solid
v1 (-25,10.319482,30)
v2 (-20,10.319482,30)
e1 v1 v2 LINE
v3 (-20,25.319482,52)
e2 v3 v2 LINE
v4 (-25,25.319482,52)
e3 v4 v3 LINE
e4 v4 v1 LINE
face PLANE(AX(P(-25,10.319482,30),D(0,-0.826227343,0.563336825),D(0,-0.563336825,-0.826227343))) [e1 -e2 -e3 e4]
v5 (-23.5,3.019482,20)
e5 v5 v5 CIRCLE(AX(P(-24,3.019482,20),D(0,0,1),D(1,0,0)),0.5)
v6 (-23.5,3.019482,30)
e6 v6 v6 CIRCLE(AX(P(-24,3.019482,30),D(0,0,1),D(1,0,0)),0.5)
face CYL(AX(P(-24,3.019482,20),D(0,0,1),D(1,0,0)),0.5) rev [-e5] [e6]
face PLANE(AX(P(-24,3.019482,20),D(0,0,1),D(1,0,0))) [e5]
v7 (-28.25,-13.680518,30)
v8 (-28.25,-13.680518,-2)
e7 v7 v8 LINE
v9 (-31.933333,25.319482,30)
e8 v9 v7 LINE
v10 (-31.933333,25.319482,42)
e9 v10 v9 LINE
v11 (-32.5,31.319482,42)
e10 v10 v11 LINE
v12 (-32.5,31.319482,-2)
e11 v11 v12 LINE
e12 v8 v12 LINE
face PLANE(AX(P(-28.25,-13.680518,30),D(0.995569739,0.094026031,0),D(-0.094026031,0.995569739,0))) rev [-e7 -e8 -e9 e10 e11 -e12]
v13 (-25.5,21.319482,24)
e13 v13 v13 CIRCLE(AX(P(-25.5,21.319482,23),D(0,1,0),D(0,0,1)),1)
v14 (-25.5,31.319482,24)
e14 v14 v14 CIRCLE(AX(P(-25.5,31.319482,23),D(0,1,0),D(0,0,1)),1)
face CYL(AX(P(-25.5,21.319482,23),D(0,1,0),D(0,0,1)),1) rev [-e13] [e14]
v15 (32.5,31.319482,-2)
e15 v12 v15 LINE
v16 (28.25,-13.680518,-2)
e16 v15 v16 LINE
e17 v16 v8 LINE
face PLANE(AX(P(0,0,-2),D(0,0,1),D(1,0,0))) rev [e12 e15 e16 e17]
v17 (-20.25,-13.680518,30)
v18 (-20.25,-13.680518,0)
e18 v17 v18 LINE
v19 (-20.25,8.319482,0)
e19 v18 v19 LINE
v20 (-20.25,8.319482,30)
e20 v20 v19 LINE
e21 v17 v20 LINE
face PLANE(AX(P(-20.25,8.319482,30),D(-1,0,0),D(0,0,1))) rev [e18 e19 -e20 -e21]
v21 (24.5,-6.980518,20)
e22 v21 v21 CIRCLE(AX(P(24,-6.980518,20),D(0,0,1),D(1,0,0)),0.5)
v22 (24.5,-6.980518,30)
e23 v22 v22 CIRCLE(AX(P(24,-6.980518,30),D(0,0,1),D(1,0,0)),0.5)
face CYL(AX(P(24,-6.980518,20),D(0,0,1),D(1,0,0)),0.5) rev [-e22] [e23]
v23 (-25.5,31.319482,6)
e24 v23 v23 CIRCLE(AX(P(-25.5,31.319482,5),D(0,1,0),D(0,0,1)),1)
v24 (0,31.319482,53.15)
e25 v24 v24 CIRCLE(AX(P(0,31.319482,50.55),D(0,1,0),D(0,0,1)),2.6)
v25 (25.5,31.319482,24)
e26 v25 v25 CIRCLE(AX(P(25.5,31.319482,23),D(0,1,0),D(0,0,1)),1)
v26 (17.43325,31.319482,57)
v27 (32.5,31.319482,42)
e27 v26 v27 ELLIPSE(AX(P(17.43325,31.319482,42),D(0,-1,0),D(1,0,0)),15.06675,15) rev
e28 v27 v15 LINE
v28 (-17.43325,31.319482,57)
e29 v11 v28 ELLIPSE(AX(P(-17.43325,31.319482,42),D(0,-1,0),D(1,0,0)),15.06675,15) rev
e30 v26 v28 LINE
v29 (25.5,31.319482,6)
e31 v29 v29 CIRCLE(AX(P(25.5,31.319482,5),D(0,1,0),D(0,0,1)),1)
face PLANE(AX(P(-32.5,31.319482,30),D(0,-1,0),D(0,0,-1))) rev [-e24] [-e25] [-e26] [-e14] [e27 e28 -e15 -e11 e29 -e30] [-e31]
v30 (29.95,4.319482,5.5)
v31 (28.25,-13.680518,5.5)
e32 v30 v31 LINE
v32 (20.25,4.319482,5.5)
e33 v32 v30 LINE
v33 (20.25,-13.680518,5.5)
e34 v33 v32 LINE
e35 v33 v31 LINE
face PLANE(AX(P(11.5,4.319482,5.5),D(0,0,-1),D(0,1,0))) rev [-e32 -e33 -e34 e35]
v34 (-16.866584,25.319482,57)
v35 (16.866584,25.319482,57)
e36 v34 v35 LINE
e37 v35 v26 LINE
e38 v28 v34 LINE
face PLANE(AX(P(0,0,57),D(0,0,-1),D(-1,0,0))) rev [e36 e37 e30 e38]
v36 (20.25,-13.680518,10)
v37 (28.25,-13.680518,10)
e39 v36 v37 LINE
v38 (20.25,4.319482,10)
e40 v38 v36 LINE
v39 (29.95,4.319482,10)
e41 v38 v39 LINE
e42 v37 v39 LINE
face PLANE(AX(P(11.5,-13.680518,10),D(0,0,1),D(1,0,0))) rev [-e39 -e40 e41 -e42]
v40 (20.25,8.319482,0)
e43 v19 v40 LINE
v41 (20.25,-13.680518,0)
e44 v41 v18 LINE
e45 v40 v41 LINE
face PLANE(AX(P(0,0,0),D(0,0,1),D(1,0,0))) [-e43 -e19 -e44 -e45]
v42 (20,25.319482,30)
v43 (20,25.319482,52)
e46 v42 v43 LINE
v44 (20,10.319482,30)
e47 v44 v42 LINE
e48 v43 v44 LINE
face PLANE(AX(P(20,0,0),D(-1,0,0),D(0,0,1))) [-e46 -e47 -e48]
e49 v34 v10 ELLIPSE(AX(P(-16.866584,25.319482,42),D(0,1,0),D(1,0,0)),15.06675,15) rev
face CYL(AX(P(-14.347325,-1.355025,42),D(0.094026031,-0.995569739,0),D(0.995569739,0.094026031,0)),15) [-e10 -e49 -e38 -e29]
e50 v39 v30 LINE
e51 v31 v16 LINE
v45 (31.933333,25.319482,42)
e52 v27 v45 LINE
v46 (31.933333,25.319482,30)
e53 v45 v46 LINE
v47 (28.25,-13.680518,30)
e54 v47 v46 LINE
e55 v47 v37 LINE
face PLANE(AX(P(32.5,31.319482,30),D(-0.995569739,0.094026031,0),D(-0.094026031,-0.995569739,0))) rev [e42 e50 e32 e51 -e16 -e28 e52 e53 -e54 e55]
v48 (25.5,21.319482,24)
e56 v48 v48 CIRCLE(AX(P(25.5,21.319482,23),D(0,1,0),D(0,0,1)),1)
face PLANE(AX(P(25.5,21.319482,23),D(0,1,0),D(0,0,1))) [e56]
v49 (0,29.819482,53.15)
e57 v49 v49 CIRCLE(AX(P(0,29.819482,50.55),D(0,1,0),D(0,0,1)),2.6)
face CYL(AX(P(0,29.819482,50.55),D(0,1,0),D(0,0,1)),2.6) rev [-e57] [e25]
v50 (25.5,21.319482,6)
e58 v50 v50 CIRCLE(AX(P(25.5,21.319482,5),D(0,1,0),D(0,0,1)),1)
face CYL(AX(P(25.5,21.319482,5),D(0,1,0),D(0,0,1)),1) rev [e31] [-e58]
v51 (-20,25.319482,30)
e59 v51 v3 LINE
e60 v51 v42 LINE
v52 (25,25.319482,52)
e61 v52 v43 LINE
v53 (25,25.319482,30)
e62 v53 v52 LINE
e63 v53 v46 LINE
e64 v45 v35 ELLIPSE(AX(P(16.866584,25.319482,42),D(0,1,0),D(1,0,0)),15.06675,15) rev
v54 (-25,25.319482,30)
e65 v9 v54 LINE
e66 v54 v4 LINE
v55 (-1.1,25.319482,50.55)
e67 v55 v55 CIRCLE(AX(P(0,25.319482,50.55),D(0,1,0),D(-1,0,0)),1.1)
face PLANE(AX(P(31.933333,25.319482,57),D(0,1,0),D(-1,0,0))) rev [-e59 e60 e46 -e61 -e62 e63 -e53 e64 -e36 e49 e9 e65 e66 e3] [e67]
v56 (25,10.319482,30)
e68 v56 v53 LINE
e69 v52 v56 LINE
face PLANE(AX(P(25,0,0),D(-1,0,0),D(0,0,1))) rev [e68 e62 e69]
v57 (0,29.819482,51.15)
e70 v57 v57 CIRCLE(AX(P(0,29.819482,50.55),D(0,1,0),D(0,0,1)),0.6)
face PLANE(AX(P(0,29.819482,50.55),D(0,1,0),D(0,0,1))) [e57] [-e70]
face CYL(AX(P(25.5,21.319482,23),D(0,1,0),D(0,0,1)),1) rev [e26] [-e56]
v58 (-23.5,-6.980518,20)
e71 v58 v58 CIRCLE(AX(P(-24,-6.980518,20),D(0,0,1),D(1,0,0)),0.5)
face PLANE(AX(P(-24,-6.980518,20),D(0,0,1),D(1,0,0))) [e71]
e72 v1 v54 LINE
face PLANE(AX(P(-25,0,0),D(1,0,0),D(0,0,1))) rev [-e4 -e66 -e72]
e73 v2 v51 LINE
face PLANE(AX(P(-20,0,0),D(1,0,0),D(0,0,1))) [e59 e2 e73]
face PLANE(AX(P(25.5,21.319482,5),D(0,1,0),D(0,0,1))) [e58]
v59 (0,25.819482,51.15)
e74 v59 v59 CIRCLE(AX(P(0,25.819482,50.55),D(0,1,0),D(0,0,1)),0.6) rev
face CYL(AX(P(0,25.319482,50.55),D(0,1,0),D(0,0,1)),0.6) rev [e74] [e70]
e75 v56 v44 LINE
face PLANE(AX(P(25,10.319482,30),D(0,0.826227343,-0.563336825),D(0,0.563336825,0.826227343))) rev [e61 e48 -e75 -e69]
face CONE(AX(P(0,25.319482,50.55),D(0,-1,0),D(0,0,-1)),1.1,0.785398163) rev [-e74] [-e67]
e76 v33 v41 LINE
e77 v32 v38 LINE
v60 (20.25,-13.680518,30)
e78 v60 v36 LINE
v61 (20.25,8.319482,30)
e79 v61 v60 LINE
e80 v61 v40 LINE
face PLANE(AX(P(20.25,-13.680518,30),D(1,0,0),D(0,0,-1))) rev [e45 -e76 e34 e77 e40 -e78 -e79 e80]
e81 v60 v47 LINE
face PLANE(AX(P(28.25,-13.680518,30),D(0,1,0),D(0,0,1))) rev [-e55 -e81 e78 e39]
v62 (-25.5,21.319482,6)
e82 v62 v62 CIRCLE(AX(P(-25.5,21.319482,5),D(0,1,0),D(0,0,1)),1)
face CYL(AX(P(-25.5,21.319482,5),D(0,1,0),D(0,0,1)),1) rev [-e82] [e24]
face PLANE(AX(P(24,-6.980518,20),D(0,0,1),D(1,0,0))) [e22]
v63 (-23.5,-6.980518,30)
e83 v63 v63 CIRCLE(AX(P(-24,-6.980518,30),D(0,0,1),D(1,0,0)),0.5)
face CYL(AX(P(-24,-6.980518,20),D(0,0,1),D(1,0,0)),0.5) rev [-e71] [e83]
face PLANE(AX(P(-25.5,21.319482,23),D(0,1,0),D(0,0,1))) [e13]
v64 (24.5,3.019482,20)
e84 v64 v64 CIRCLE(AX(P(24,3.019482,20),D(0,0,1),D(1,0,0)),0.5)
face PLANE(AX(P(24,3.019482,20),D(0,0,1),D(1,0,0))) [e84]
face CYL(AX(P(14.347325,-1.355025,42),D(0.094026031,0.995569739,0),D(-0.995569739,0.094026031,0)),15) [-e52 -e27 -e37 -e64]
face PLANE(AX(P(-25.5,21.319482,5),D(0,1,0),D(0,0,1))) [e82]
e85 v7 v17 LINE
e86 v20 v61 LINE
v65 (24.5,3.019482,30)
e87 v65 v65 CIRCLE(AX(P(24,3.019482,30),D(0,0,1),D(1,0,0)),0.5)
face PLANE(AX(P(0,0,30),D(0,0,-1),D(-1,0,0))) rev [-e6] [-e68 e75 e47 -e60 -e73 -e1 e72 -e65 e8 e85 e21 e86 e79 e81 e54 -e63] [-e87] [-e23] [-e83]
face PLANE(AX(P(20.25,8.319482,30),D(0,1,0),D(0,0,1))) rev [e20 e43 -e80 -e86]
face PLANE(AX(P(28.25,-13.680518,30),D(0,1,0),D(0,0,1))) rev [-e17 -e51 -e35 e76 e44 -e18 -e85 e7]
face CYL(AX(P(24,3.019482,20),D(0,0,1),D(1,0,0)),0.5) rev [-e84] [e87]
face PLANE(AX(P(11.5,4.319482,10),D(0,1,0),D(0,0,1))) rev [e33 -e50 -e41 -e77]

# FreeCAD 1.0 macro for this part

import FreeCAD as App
import Part
import Sketcher
Q = App.Units.Quantity


def edges_at(feature, points):
    """Names of the edges that pass closest to the given points."""
    edges = feature.Shape.Edges
    near = lambda p: min(range(len(edges)), key=lambda i: edges[i].distToShape(Part.Vertex(*p))[0])
    return sorted({f"Edge{near(p) + 1}" for p in points})

doc = App.newDocument("Part")
body = doc.addObject("PartDesign::Body", "Body")

sketch1 = body.newObject("Sketcher::SketchObject", "Sketch")
sketch1.AttachmentSupport = (doc.getObject("XY_Plane"), [""])
sketch1.MapMode = "FlatFace"
sketch1.addGeometry(Part.LineSegment(App.Vector(32.5, 31.319482, 0), App.Vector(-32.5, 31.319482, 0)), False)
sketch1.addGeometry(Part.LineSegment(App.Vector(-32.5, 31.319482, 0), App.Vector(-28.25, -13.680518, 0)), False)
sketch1.addGeometry(Part.LineSegment(App.Vector(-28.25, -13.680518, 0), App.Vector(-20.25, -13.680518, 0)), False)
sketch1.addGeometry(Part.LineSegment(App.Vector(-20.25, -13.680518, 0), App.Vector(-20.25, 8.319482, 0)), False)
sketch1.addGeometry(Part.LineSegment(App.Vector(-20.25, 8.319482, 0), App.Vector(20.25, 8.319482, 0)), False)
sketch1.addGeometry(Part.LineSegment(App.Vector(20.25, 8.319482, 0), App.Vector(20.25, -13.680518, 0)), False)
sketch1.addGeometry(Part.LineSegment(App.Vector(20.25, -13.680518, 0), App.Vector(28.25, -13.680518, 0)), False)
sketch1.addGeometry(Part.LineSegment(App.Vector(28.25, -13.680518, 0), App.Vector(32.5, 31.319482, 0)), False)
sketch1.addConstraint(Sketcher.Constraint("Coincident", 0, 2, 1, 1))
sketch1.addConstraint(Sketcher.Constraint("Coincident", 1, 2, 2, 1))
sketch1.addConstraint(Sketcher.Constraint("Coincident", 2, 2, 3, 1))
sketch1.addConstraint(Sketcher.Constraint("Coincident", 3, 2, 4, 1))
sketch1.addConstraint(Sketcher.Constraint("Coincident", 4, 2, 5, 1))
sketch1.addConstraint(Sketcher.Constraint("Coincident", 5, 2, 6, 1))
sketch1.addConstraint(Sketcher.Constraint("Coincident", 6, 2, 7, 1))
sketch1.addConstraint(Sketcher.Constraint("Coincident", 7, 2, 0, 1))
sketch1.addConstraint(Sketcher.Constraint("Horizontal", 0))
sketch1.addConstraint(Sketcher.Constraint("Horizontal", 2))
sketch1.addConstraint(Sketcher.Constraint("Vertical", 3))
sketch1.addConstraint(Sketcher.Constraint("Horizontal", 4))
sketch1.addConstraint(Sketcher.Constraint("Vertical", 5))
sketch1.addConstraint(Sketcher.Constraint("Horizontal", 6))
sketch1.addConstraint(Sketcher.Constraint("Symmetric", 2, 2, 5, 2, -2))
sketch1.addConstraint(Sketcher.Constraint("Equal", 2, 6))
sketch1.addConstraint(Sketcher.Constraint("Equal", 1, 7))
sketch1.addConstraint(Sketcher.Constraint("DistanceX", 0, 2, 0, 1, Q("65 mm")))
sketch1.addConstraint(Sketcher.Constraint("DistanceX", 2, 1, 2, 2, Q("8 mm")))
sketch1.addConstraint(Sketcher.Constraint("DistanceY", 3, 1, 3, 2, Q("22 mm")))
sketch1.addConstraint(Sketcher.Constraint("DistanceX", 4, 1, 4, 2, Q("40.5 mm")))
sketch1.addConstraint(Sketcher.Constraint("DistanceY", 1, 2, 0, 2, Q("45 mm")))
sketch1.addConstraint(Sketcher.Constraint("DistanceY", -1, 1, 0, 2, Q("31.319482 mm")))
pad1 = body.newObject("PartDesign::Pad", "Pad")
pad1.Profile = sketch1
pad1.Length = 30

sketch2 = body.newObject("Sketcher::SketchObject", "Sketch001")
sketch2.AttachmentSupport = (doc.getObject("YZ_Plane"), [""])
sketch2.MapMode = "FlatFace"
sketch2.AttachmentOffset = App.Placement(App.Vector(0, 0, 40), App.Rotation())
sketch2.addGeometry(Part.LineSegment(App.Vector(4.319482, 10, 0), App.Vector(-13.680518, 10, 0)), False)
sketch2.addGeometry(Part.LineSegment(App.Vector(-13.680518, 10, 0), App.Vector(-13.680518, 5.5, 0)), False)
sketch2.addGeometry(Part.LineSegment(App.Vector(-13.680518, 5.5, 0), App.Vector(4.319482, 5.5, 0)), False)
sketch2.addGeometry(Part.LineSegment(App.Vector(4.319482, 5.5, 0), App.Vector(4.319482, 10, 0)), False)
sketch2.addConstraint(Sketcher.Constraint("Coincident", 0, 2, 1, 1))
sketch2.addConstraint(Sketcher.Constraint("Coincident", 1, 2, 2, 1))
sketch2.addConstraint(Sketcher.Constraint("Coincident", 2, 2, 3, 1))
sketch2.addConstraint(Sketcher.Constraint("Coincident", 3, 2, 0, 1))
sketch2.addConstraint(Sketcher.Constraint("Horizontal", 0))
sketch2.addConstraint(Sketcher.Constraint("Vertical", 1))
sketch2.addConstraint(Sketcher.Constraint("Horizontal", 2))
sketch2.addConstraint(Sketcher.Constraint("Vertical", 3))
sketch2.addConstraint(Sketcher.Constraint("DistanceX", 0, 2, 0, 1, Q("18 mm")))
sketch2.addConstraint(Sketcher.Constraint("DistanceY", 1, 2, 1, 1, Q("4.5 mm")))
sketch2.addConstraint(Sketcher.Constraint("DistanceY", -1, 1, 0, 2, Q("10 mm")))
sketch2.addConstraint(Sketcher.Constraint("DistanceX", 0, 2, -1, 1, Q("13.680518 mm")))
pocket1 = body.newObject("PartDesign::Pocket", "Pocket")
pocket1.Profile = sketch2
pocket1.Length = 28.5

sketch3 = body.newObject("Sketcher::SketchObject", "Sketch002")
sketch3.AttachmentSupport = (doc.getObject("XY_Plane"), [""])
sketch3.MapMode = "FlatFace"
sketch3.addGeometry(Part.LineSegment(App.Vector(-32.5, 31.319482, 0), App.Vector(32.5, 31.319482, 0)), False)
sketch3.addGeometry(Part.LineSegment(App.Vector(32.5, 31.319482, 0), App.Vector(28.25, -13.680518, 0)), False)
sketch3.addGeometry(Part.LineSegment(App.Vector(28.25, -13.680518, 0), App.Vector(-28.25, -13.680518, 0)), False)
sketch3.addGeometry(Part.LineSegment(App.Vector(-28.25, -13.680518, 0), App.Vector(-32.5, 31.319482, 0)), False)
sketch3.addConstraint(Sketcher.Constraint("Coincident", 0, 2, 1, 1))
sketch3.addConstraint(Sketcher.Constraint("Coincident", 1, 2, 2, 1))
sketch3.addConstraint(Sketcher.Constraint("Coincident", 2, 2, 3, 1))
sketch3.addConstraint(Sketcher.Constraint("Coincident", 3, 2, 0, 1))
sketch3.addConstraint(Sketcher.Constraint("Horizontal", 0))
sketch3.addConstraint(Sketcher.Constraint("Horizontal", 2))
sketch3.addConstraint(Sketcher.Constraint("Equal", 1, 3))
sketch3.addConstraint(Sketcher.Constraint("DistanceX", 0, 1, 0, 2, Q("65 mm")))
sketch3.addConstraint(Sketcher.Constraint("DistanceX", 2, 2, 2, 1, Q("56.5 mm")))
sketch3.addConstraint(Sketcher.Constraint("DistanceY", 1, 2, 0, 2, Q("45 mm")))
sketch3.addConstraint(Sketcher.Constraint("DistanceX", -1, 1, 0, 2, Q("32.5 mm")))
sketch3.addConstraint(Sketcher.Constraint("DistanceY", -1, 1, 0, 2, Q("31.319482 mm")))
pad2 = body.newObject("PartDesign::Pad", "Pad001")
pad2.Profile = sketch3
pad2.Length = 2
pad2.Reversed = True

sketch4 = body.newObject("Sketcher::SketchObject", "Sketch003")
sketch4.AttachmentSupport = (doc.getObject("XY_Plane"), [""])
sketch4.MapMode = "FlatFace"
sketch4.AttachmentOffset = App.Placement(App.Vector(0, 0, 30), App.Rotation())
sketch4.addGeometry(Part.Circle(App.Vector(-24, 3.019482, 0), App.Vector(0, 0, 1), 0.5), False)
sketch4.addGeometry(Part.Circle(App.Vector(24, 3.019482, 0), App.Vector(0, 0, 1), 0.5), False)
sketch4.addGeometry(Part.Circle(App.Vector(-24, -6.980518, 0), App.Vector(0, 0, 1), 0.5), False)
sketch4.addGeometry(Part.Circle(App.Vector(24, -6.980518, 0), App.Vector(0, 0, 1), 0.5), False)
sketch4.addConstraint(Sketcher.Constraint("Equal", 0, 1))
sketch4.addConstraint(Sketcher.Constraint("Equal", 1, 2))
sketch4.addConstraint(Sketcher.Constraint("Equal", 2, 3))
sketch4.addConstraint(Sketcher.Constraint("Symmetric", 0, 3, 1, 3, -2))
sketch4.addConstraint(Sketcher.Constraint("Symmetric", 2, 3, 3, 3, -2))
sketch4.addConstraint(Sketcher.Constraint("Vertical", 0, 3, 2, 3))
sketch4.addConstraint(Sketcher.Constraint("Diameter", 0, Q("1 mm")))
sketch4.addConstraint(Sketcher.Constraint("DistanceX", 0, 3, -1, 1, Q("24 mm")))
sketch4.addConstraint(Sketcher.Constraint("DistanceY", 2, 3, 0, 3, Q("10 mm")))
sketch4.addConstraint(Sketcher.Constraint("DistanceY", -1, 1, 0, 3, Q("3.019482 mm")))
pocket2 = body.newObject("PartDesign::Pocket", "Pocket001")
pocket2.Profile = sketch4
pocket2.Length = 10

sketch5 = body.newObject("Sketcher::SketchObject", "Sketch004")
sketch5.AttachmentSupport = (doc.getObject("XZ_Plane"), [""])
sketch5.MapMode = "FlatFace"
sketch5.AttachmentOffset = App.Placement(App.Vector(0, 0, -31.319482), App.Rotation())
sketch5.addGeometry(Part.Circle(App.Vector(-25.5, 5, 0), App.Vector(0, 0, 1), 1), False)
sketch5.addGeometry(Part.Circle(App.Vector(-25.5, 23, 0), App.Vector(0, 0, 1), 1), False)
sketch5.addGeometry(Part.Circle(App.Vector(25.5, 5, 0), App.Vector(0, 0, 1), 1), False)
sketch5.addGeometry(Part.Circle(App.Vector(25.5, 23, 0), App.Vector(0, 0, 1), 1), False)
sketch5.addConstraint(Sketcher.Constraint("Equal", 0, 1))
sketch5.addConstraint(Sketcher.Constraint("Equal", 1, 2))
sketch5.addConstraint(Sketcher.Constraint("Equal", 2, 3))
sketch5.addConstraint(Sketcher.Constraint("Symmetric", 0, 3, 2, 3, -2))
sketch5.addConstraint(Sketcher.Constraint("Symmetric", 1, 3, 3, 3, -2))
sketch5.addConstraint(Sketcher.Constraint("Vertical", 0, 3, 1, 3))
sketch5.addConstraint(Sketcher.Constraint("Diameter", 0, Q("2 mm")))
sketch5.addConstraint(Sketcher.Constraint("DistanceY", -1, 1, 0, 3, Q("5 mm")))
sketch5.addConstraint(Sketcher.Constraint("DistanceY", -1, 1, 1, 3, Q("23 mm")))
sketch5.addConstraint(Sketcher.Constraint("DistanceX", 0, 3, 2, 3, Q("51 mm")))
pocket3 = body.newObject("PartDesign::Pocket", "Pocket002")
pocket3.Profile = sketch5
pocket3.Length = 10
pocket3.Reversed = True

sketch6 = body.newObject("Sketcher::SketchObject", "Sketch005")
sketch6.AttachmentSupport = (doc.getObject("XY_Plane"), [""])
sketch6.MapMode = "FlatFace"
sketch6.AttachmentOffset = App.Placement(App.Vector(0, 0, 30), App.Rotation())
sketch6.addGeometry(Part.LineSegment(App.Vector(32.5, 31.319482, 0), App.Vector(-32.5, 31.319482, 0)), False)
sketch6.addGeometry(Part.LineSegment(App.Vector(-32.5, 31.319482, 0), App.Vector(-31.933333, 25.319482, 0)), False)
sketch6.addGeometry(Part.LineSegment(App.Vector(-31.933333, 25.319482, 0), App.Vector(31.933333, 25.319482, 0)), False)
sketch6.addGeometry(Part.LineSegment(App.Vector(31.933333, 25.319482, 0), App.Vector(32.5, 31.319482, 0)), False)
sketch6.addConstraint(Sketcher.Constraint("Coincident", 0, 2, 1, 1))
sketch6.addConstraint(Sketcher.Constraint("Coincident", 1, 2, 2, 1))
sketch6.addConstraint(Sketcher.Constraint("Coincident", 2, 2, 3, 1))
sketch6.addConstraint(Sketcher.Constraint("Coincident", 3, 2, 0, 1))
sketch6.addConstraint(Sketcher.Constraint("Horizontal", 0))
sketch6.addConstraint(Sketcher.Constraint("Horizontal", 2))
sketch6.addConstraint(Sketcher.Constraint("Equal", 1, 3))
sketch6.addConstraint(Sketcher.Constraint("DistanceX", 0, 2, 0, 1, Q("65 mm")))
sketch6.addConstraint(Sketcher.Constraint("DistanceY", 1, 2, 0, 2, Q("6 mm")))
sketch6.addConstraint(Sketcher.Constraint("DistanceX", 0, 2, -1, 1, Q("32.5 mm")))
sketch6.addConstraint(Sketcher.Constraint("Distance", 1, Q("6.0267 mm")))
sketch6.addConstraint(Sketcher.Constraint("DistanceY", -1, 1, 0, 2, Q("31.319482 mm")))
pad3 = body.newObject("PartDesign::Pad", "Pad002")
pad3.Profile = sketch6
pad3.Length = 27

sketch7 = body.newObject("Sketcher::SketchObject", "Sketch006")
sketch7.AttachmentSupport = (doc.getObject("YZ_Plane"), [""])
sketch7.MapMode = "FlatFace"
sketch7.AttachmentOffset = App.Placement(App.Vector(0, 0, 20), App.Rotation())
sketch7.addGeometry(Part.LineSegment(App.Vector(10.319482, 30, 0), App.Vector(25.319482, 30, 0)), False)
sketch7.addGeometry(Part.LineSegment(App.Vector(25.319482, 30, 0), App.Vector(25.319482, 52, 0)), False)
sketch7.addGeometry(Part.LineSegment(App.Vector(25.319482, 52, 0), App.Vector(10.319482, 30, 0)), False)
sketch7.addConstraint(Sketcher.Constraint("Coincident", 0, 2, 1, 1))
sketch7.addConstraint(Sketcher.Constraint("Coincident", 1, 2, 2, 1))
sketch7.addConstraint(Sketcher.Constraint("Coincident", 2, 2, 0, 1))
sketch7.addConstraint(Sketcher.Constraint("Horizontal", 0))
sketch7.addConstraint(Sketcher.Constraint("Vertical", 1))
sketch7.addConstraint(Sketcher.Constraint("DistanceX", 0, 1, 0, 2, Q("15 mm")))
sketch7.addConstraint(Sketcher.Constraint("DistanceY", 1, 1, 1, 2, Q("22 mm")))
sketch7.addConstraint(Sketcher.Constraint("DistanceY", -1, 1, 0, 2, Q("30 mm")))
sketch7.addConstraint(Sketcher.Constraint("DistanceX", -1, 1, 0, 2, Q("25.319482 mm")))
pad4 = body.newObject("PartDesign::Pad", "Pad003")
pad4.Profile = sketch7
pad4.Length = 5
doc.recompute()

mirrored = body.newObject("PartDesign::Mirrored", "Mirrored")
mirrored.Originals = [pad4]
mirrored.MirrorPlane = (doc.getObject("YZ_Plane"), [""])
body.Tip = mirrored
doc.recompute()

fillet = body.newObject("PartDesign::Fillet", "Fillet")
fillet.Base = (mirrored, edges_at(mirrored, [(-32.217, 28.319, 57), (32.217, 28.319, 57)]))
fillet.Radius = 15

sketch8 = body.newObject("Sketcher::SketchObject", "Sketch007")
sketch8.AttachmentSupport = (doc.getObject("XZ_Plane"), [""])
sketch8.MapMode = "FlatFace"
sketch8.AttachmentOffset = App.Placement(App.Vector(0, 0, -31.319482), App.Rotation())
sketch8.addGeometry(Part.Circle(App.Vector(0, 50.55, 0), App.Vector(0, 0, 1), 2.6), False)
sketch8.addConstraint(Sketcher.Constraint("PointOnObject", 0, 3, -2))
sketch8.addConstraint(Sketcher.Constraint("Diameter", 0, Q("5.2 mm")))
sketch8.addConstraint(Sketcher.Constraint("DistanceY", -1, 1, 0, 3, Q("50.55 mm")))
pocket4 = body.newObject("PartDesign::Pocket", "Pocket003")
pocket4.Profile = sketch8
pocket4.Length = 1.5
pocket4.Reversed = True

sketch9 = body.newObject("Sketcher::SketchObject", "Sketch008")
sketch9.AttachmentSupport = (doc.getObject("XZ_Plane"), [""])
sketch9.MapMode = "FlatFace"
sketch9.AttachmentOffset = App.Placement(App.Vector(0, 0, -29.819482), App.Rotation())
sketch9.addGeometry(Part.Circle(App.Vector(0, 50.55, 0), App.Vector(0, 0, 1), 0.6), False)
sketch9.addConstraint(Sketcher.Constraint("PointOnObject", 0, 3, -2))
sketch9.addConstraint(Sketcher.Constraint("Diameter", 0, Q("1.2 mm")))
sketch9.addConstraint(Sketcher.Constraint("DistanceY", -1, 1, 0, 3, Q("50.55 mm")))
pocket5 = body.newObject("PartDesign::Pocket", "Pocket004")
pocket5.Profile = sketch9
pocket5.Length = 4.5
pocket5.Reversed = True
doc.recompute()

chamfer = body.newObject("PartDesign::Chamfer", "Chamfer")
chamfer.Base = (pocket5, edges_at(pocket5, [(-0.6, 25.319, 50.55)]))
chamfer.Size = 0.5

doc.recompute()
